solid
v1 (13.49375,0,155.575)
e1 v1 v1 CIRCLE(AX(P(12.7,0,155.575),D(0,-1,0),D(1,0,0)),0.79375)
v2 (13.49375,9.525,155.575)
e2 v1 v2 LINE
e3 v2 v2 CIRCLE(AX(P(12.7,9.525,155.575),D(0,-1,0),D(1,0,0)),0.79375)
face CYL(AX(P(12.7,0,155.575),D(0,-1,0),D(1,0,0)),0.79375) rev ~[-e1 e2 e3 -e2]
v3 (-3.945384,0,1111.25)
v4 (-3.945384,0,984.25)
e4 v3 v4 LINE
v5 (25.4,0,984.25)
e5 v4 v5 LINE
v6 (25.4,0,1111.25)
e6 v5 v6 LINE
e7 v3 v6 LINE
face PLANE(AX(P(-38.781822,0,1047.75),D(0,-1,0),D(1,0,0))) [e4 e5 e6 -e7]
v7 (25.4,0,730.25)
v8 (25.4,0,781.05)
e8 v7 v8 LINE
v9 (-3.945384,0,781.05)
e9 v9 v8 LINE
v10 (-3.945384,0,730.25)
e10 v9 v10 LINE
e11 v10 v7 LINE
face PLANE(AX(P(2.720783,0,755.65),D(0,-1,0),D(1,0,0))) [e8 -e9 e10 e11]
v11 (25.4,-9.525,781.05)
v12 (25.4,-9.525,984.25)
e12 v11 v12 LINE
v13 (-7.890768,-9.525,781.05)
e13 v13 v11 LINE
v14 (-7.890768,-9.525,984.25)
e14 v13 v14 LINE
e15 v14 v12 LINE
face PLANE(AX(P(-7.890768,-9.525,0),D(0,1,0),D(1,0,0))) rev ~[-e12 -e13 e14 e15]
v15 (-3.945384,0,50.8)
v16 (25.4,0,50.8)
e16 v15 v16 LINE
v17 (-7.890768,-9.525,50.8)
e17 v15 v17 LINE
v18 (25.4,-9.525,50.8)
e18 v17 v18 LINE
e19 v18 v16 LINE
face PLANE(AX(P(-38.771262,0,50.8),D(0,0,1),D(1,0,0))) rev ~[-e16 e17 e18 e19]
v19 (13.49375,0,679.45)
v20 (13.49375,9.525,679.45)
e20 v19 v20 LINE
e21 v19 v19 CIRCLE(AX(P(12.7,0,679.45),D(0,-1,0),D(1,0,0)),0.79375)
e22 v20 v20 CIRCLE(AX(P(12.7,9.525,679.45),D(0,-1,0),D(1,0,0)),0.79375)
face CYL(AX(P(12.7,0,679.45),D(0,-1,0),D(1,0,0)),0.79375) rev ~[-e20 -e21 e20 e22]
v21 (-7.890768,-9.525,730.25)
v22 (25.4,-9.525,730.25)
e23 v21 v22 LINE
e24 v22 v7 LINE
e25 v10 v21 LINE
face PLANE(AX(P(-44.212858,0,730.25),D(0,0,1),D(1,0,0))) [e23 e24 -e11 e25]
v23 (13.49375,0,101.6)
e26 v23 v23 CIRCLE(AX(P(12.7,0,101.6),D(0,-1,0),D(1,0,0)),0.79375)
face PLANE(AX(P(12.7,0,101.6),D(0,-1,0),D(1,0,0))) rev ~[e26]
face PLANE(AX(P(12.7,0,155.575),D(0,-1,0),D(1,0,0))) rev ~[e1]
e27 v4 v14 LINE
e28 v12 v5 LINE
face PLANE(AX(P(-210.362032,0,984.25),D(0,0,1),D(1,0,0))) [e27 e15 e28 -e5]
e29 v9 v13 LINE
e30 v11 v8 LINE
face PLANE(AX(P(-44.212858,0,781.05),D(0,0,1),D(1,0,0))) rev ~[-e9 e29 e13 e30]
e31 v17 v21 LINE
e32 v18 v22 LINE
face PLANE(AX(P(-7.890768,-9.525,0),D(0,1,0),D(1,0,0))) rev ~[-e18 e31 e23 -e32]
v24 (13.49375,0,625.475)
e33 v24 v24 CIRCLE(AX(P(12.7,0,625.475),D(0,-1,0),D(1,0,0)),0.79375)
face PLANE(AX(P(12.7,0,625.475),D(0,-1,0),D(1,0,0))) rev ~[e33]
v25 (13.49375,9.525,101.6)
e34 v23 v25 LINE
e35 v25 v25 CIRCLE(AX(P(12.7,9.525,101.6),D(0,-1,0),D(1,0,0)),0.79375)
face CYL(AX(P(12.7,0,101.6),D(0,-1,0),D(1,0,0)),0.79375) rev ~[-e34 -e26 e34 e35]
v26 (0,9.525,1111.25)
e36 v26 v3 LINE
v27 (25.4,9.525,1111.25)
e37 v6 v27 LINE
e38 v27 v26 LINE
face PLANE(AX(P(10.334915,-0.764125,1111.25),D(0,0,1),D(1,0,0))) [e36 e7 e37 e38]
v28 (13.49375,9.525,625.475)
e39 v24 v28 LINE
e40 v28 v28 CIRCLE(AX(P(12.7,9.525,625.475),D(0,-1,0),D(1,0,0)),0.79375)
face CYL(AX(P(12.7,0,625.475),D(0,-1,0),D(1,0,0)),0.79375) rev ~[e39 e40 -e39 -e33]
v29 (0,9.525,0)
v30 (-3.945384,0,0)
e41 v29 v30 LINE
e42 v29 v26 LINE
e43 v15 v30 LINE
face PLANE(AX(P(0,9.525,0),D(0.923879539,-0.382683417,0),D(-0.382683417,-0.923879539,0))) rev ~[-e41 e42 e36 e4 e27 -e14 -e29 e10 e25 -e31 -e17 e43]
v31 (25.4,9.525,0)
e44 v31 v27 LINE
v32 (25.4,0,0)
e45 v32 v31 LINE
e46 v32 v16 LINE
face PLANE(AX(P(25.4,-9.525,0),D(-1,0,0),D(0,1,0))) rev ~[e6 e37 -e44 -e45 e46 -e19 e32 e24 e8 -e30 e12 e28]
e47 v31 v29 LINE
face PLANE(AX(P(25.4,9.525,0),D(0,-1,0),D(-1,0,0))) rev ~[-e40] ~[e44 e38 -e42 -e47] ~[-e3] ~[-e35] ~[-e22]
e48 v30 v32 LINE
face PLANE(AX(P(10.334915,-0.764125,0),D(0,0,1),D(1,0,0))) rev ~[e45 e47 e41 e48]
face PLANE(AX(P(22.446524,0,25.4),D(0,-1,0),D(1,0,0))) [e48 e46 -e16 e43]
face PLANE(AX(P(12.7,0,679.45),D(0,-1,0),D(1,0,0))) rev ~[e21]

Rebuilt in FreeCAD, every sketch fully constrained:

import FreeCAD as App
import Part
import Sketcher
from FreeCAD import Vector
Q = App.Units.Quantity

doc = App.newDocument("Part")
body = doc.addObject("PartDesign::Body", "Body")

# Sketch on XY plane
sketch1 = doc.addObject("Sketcher::SketchObject", "Sketch")
body.addObject(sketch1)
sketch1.AttachmentSupport = (doc.XY_Plane, [""])
sketch1.MapMode = "FlatFace"
sketch1.addGeometry(Part.LineSegment(Vector(25.4, -9.525, 0), Vector(25.4, 9.525, 0)), False)
sketch1.addGeometry(Part.LineSegment(Vector(25.4, 9.525, 0), Vector(0, 9.525, 0)), False)
sketch1.addGeometry(Part.LineSegment(Vector(0, 9.525, 0), Vector(-7.890768, -9.525, 0)), False)
sketch1.addGeometry(Part.LineSegment(Vector(-7.890768, -9.525, 0), Vector(25.4, -9.525, 0)), False)
sketch1.addConstraint(Sketcher.Constraint("Coincident", 0, 2, 1, 1))
sketch1.addConstraint(Sketcher.Constraint("Coincident", 1, 2, 2, 1))
sketch1.addConstraint(Sketcher.Constraint("Coincident", 2, 2, 3, 1))
sketch1.addConstraint(Sketcher.Constraint("Coincident", 3, 2, 0, 1))
sketch1.addConstraint(Sketcher.Constraint("Vertical", 0))
sketch1.addConstraint(Sketcher.Constraint("Horizontal", 1))
sketch1.addConstraint(Sketcher.Constraint("Horizontal", 3))
sketch1.addConstraint(Sketcher.Constraint("PointOnObject", 1, 2, -2))
sketch1.addConstraint(Sketcher.Constraint("DistanceX", 1, 2, 1, 1, Q("1 in")))
sketch1.addConstraint(Sketcher.Constraint("DistanceY", 0, 1, 0, 2, Q("0.75 in")))
sketch1.addConstraint(Sketcher.Constraint("Angle", 2, Q("-112.499999 deg")))
sketch1.addConstraint(Sketcher.Constraint("DistanceY", -1, 1, 0, 2, Q("0.375 in")))
pad1 = doc.addObject("PartDesign::Pad", "Pad")
body.addObject(pad1)
pad1.Profile = sketch1
pad1.Length = Q("43.75 in")

# Sketch on XZ plane
sketch2 = doc.addObject("Sketcher::SketchObject", "Sketch001")
body.addObject(sketch2)
sketch2.AttachmentSupport = (doc.XZ_Plane, [""])
sketch2.MapMode = "FlatFace"
sketch2.addGeometry(Part.LineSegment(Vector(-38.771262, 50.8, 0), Vector(-38.771262, 0, 0)), False)
sketch2.addGeometry(Part.LineSegment(Vector(-38.771262, 0, 0), Vector(83.66431, 0, 0)), False)
sketch2.addGeometry(Part.LineSegment(Vector(83.66431, 0, 0), Vector(83.66431, 50.8, 0)), False)
sketch2.addGeometry(Part.LineSegment(Vector(83.66431, 50.8, 0), Vector(-38.771262, 50.8, 0)), False)
sketch2.addGeometry(Part.LineSegment(Vector(-44.212858, 781.05, 0), Vector(-44.212858, 730.25, 0)), False)
sketch2.addGeometry(Part.LineSegment(Vector(-44.212858, 730.25, 0), Vector(49.654424, 730.25, 0)), False)
sketch2.addGeometry(Part.LineSegment(Vector(49.654424, 730.25, 0), Vector(49.654424, 781.05, 0)), False)
sketch2.addGeometry(Part.LineSegment(Vector(49.654424, 781.05, 0), Vector(-44.212858, 781.05, 0)), False)
sketch2.addGeometry(Part.LineSegment(Vector(-210.362032, 1111.25, 0), Vector(-210.362032, 984.25, 0)), False)
sketch2.addGeometry(Part.LineSegment(Vector(-210.362032, 984.25, 0), Vector(132.798388, 984.25, 0)), False)
sketch2.addGeometry(Part.LineSegment(Vector(132.798388, 984.25, 0), Vector(132.798388, 1111.25, 0)), False)
sketch2.addGeometry(Part.LineSegment(Vector(132.798388, 1111.25, 0), Vector(-210.362032, 1111.25, 0)), False)
sketch2.addConstraint(Sketcher.Constraint("Coincident", 0, 2, 1, 1))
sketch2.addConstraint(Sketcher.Constraint("Coincident", 1, 2, 2, 1))
sketch2.addConstraint(Sketcher.Constraint("Coincident", 2, 2, 3, 1))
sketch2.addConstraint(Sketcher.Constraint("Coincident", 3, 2, 0, 1))
sketch2.addConstraint(Sketcher.Constraint("Coincident", 4, 2, 5, 1))
sketch2.addConstraint(Sketcher.Constraint("Coincident", 5, 2, 6, 1))
sketch2.addConstraint(Sketcher.Constraint("Coincident", 6, 2, 7, 1))
sketch2.addConstraint(Sketcher.Constraint("Coincident", 7, 2, 4, 1))
sketch2.addConstraint(Sketcher.Constraint("Coincident", 8, 2, 9, 1))
sketch2.addConstraint(Sketcher.Constraint("Coincident", 9, 2, 10, 1))
sketch2.addConstraint(Sketcher.Constraint("Coincident", 10, 2, 11, 1))
sketch2.addConstraint(Sketcher.Constraint("Coincident", 11, 2, 8, 1))
sketch2.addConstraint(Sketcher.Constraint("Vertical", 0))
sketch2.addConstraint(Sketcher.Constraint("Horizontal", 1))
sketch2.addConstraint(Sketcher.Constraint("Vertical", 2))
sketch2.addConstraint(Sketcher.Constraint("Horizontal", 3))
sketch2.addConstraint(Sketcher.Constraint("Vertical", 4))
sketch2.addConstraint(Sketcher.Constraint("Horizontal", 5))
sketch2.addConstraint(Sketcher.Constraint("Vertical", 6))
sketch2.addConstraint(Sketcher.Constraint("Horizontal", 7))
sketch2.addConstraint(Sketcher.Constraint("Vertical", 8))
sketch2.addConstraint(Sketcher.Constraint("Horizontal", 9))
sketch2.addConstraint(Sketcher.Constraint("Vertical", 10))
sketch2.addConstraint(Sketcher.Constraint("Horizontal", 11))
sketch2.addConstraint(Sketcher.Constraint("PointOnObject", 0, 2, -1))
sketch2.addConstraint(Sketcher.Constraint("Equal", 2, 4))
sketch2.addConstraint(Sketcher.Constraint("DistanceY", 0, 2, 0, 1, Q("2 in")))
sketch2.addConstraint(Sketcher.Constraint("DistanceY", 8, 2, 8, 1, Q("5 in")))
sketch2.addConstraint(Sketcher.Constraint("DistanceY", 7, 2, 8, 2, Q("8 in")))
sketch2.addConstraint(Sketcher.Constraint("DistanceY", -1, 1, 4, 2, Q("28.75 in")))
sketch2.addConstraint(Sketcher.Constraint("DistanceX", 5, 1, 5, 2, Q("93.867282 mm")))
sketch2.addConstraint(Sketcher.Constraint("DistanceX", 9, 1, 9, 2, Q("343.160421 mm")))
sketch2.addConstraint(Sketcher.Constraint("DistanceX", 1, 1, 1, 2, Q("122.435573 mm")))
sketch2.addConstraint(Sketcher.Constraint("DistanceX", -1, 1, 1, 2, Q("83.66431 mm")))
sketch2.addConstraint(Sketcher.Constraint("DistanceX", -1, 1, 9, 2, Q("132.798388 mm")))
sketch2.addConstraint(Sketcher.Constraint("DistanceX", 4, 2, 2, 2, Q("127.877168 mm")))
pocket1 = doc.addObject("PartDesign::Pocket", "Pocket")
body.addObject(pocket1)
pocket1.Profile = sketch2
pocket1.Length = Q("1 in")
pocket1.Reversed = True

# Sketch on XZ plane
sketch3 = doc.addObject("Sketcher::SketchObject", "Sketch002")
body.addObject(sketch3)
sketch3.AttachmentSupport = (doc.XZ_Plane, [""])
sketch3.MapMode = "FlatFace"
sketch3.addGeometry(Part.Circle(Vector(12.7, 101.6, 0), Vector(0, 0, 1), 0.79375), False)
sketch3.addGeometry(Part.Circle(Vector(12.7, 155.575, 0), Vector(0, 0, 1), 0.79375), False)
sketch3.addGeometry(Part.Circle(Vector(12.7, 625.475, 0), Vector(0, 0, 1), 0.79375), False)
sketch3.addGeometry(Part.Circle(Vector(12.7, 679.45, 0), Vector(0, 0, 1), 0.79375), False)
sketch3.addGeometry(Part.Circle(Vector(-12.7, 625.475, 0), Vector(0, 0, 1), 0.79375), False)
sketch3.addGeometry(Part.Circle(Vector(-12.7, 679.45, 0), Vector(0, 0, 1), 0.79375), False)
sketch3.addGeometry(Part.Circle(Vector(-12.7, 101.6, 0), Vector(0, 0, 1), 0.79375), False)
sketch3.addGeometry(Part.Circle(Vector(-12.7, 155.575, 0), Vector(0, 0, 1), 0.79375), False)
sketch3.addConstraint(Sketcher.Constraint("Equal", 0, 1))
sketch3.addConstraint(Sketcher.Constraint("Equal", 1, 2))
sketch3.addConstraint(Sketcher.Constraint("Equal", 2, 3))
sketch3.addConstraint(Sketcher.Constraint("Equal", 3, 4))
sketch3.addConstraint(Sketcher.Constraint("Equal", 4, 5))
sketch3.addConstraint(Sketcher.Constraint("Equal", 5, 6))
sketch3.addConstraint(Sketcher.Constraint("Equal", 6, 7))
sketch3.addConstraint(Sketcher.Constraint("Symmetric", 2, 3, 4, 3, -2))
sketch3.addConstraint(Sketcher.Constraint("Symmetric", 3, 3, 5, 3, -2))
sketch3.addConstraint(Sketcher.Constraint("Symmetric", 0, 3, 6, 3, -2))
sketch3.addConstraint(Sketcher.Constraint("Symmetric", 1, 3, 7, 3, -2))
sketch3.addConstraint(Sketcher.Constraint("Vertical", 0, 3, 1, 3))
sketch3.addConstraint(Sketcher.Constraint("Vertical", 1, 3, 2, 3))
sketch3.addConstraint(Sketcher.Constraint("Vertical", 2, 3, 3, 3))
sketch3.addConstraint(Sketcher.Constraint("Diameter", 0, Q("0.0625 in")))
sketch3.addConstraint(Sketcher.Constraint("DistanceY", -1, 1, 0, 3, Q("4 in")))
sketch3.addConstraint(Sketcher.Constraint("DistanceX", 4, 3, 2, 3, Q("1 in")))
sketch3.addConstraint(Sketcher.Constraint("DistanceY", 1, 3, 2, 3, Q("18.5 in")))
sketch3.addConstraint(Sketcher.Constraint("DistanceY", -1, 1, 3, 3, Q("26.75 in")))
sketch3.addConstraint(Sketcher.Constraint("DistanceY", -1, 1, 1, 3, Q("6.125 in")))
pocket2 = doc.addObject("PartDesign::Pocket", "Pocket001")
body.addObject(pocket2)
pocket2.Profile = sketch3
pocket2.Length = Q("1 in")

doc.recompute()
